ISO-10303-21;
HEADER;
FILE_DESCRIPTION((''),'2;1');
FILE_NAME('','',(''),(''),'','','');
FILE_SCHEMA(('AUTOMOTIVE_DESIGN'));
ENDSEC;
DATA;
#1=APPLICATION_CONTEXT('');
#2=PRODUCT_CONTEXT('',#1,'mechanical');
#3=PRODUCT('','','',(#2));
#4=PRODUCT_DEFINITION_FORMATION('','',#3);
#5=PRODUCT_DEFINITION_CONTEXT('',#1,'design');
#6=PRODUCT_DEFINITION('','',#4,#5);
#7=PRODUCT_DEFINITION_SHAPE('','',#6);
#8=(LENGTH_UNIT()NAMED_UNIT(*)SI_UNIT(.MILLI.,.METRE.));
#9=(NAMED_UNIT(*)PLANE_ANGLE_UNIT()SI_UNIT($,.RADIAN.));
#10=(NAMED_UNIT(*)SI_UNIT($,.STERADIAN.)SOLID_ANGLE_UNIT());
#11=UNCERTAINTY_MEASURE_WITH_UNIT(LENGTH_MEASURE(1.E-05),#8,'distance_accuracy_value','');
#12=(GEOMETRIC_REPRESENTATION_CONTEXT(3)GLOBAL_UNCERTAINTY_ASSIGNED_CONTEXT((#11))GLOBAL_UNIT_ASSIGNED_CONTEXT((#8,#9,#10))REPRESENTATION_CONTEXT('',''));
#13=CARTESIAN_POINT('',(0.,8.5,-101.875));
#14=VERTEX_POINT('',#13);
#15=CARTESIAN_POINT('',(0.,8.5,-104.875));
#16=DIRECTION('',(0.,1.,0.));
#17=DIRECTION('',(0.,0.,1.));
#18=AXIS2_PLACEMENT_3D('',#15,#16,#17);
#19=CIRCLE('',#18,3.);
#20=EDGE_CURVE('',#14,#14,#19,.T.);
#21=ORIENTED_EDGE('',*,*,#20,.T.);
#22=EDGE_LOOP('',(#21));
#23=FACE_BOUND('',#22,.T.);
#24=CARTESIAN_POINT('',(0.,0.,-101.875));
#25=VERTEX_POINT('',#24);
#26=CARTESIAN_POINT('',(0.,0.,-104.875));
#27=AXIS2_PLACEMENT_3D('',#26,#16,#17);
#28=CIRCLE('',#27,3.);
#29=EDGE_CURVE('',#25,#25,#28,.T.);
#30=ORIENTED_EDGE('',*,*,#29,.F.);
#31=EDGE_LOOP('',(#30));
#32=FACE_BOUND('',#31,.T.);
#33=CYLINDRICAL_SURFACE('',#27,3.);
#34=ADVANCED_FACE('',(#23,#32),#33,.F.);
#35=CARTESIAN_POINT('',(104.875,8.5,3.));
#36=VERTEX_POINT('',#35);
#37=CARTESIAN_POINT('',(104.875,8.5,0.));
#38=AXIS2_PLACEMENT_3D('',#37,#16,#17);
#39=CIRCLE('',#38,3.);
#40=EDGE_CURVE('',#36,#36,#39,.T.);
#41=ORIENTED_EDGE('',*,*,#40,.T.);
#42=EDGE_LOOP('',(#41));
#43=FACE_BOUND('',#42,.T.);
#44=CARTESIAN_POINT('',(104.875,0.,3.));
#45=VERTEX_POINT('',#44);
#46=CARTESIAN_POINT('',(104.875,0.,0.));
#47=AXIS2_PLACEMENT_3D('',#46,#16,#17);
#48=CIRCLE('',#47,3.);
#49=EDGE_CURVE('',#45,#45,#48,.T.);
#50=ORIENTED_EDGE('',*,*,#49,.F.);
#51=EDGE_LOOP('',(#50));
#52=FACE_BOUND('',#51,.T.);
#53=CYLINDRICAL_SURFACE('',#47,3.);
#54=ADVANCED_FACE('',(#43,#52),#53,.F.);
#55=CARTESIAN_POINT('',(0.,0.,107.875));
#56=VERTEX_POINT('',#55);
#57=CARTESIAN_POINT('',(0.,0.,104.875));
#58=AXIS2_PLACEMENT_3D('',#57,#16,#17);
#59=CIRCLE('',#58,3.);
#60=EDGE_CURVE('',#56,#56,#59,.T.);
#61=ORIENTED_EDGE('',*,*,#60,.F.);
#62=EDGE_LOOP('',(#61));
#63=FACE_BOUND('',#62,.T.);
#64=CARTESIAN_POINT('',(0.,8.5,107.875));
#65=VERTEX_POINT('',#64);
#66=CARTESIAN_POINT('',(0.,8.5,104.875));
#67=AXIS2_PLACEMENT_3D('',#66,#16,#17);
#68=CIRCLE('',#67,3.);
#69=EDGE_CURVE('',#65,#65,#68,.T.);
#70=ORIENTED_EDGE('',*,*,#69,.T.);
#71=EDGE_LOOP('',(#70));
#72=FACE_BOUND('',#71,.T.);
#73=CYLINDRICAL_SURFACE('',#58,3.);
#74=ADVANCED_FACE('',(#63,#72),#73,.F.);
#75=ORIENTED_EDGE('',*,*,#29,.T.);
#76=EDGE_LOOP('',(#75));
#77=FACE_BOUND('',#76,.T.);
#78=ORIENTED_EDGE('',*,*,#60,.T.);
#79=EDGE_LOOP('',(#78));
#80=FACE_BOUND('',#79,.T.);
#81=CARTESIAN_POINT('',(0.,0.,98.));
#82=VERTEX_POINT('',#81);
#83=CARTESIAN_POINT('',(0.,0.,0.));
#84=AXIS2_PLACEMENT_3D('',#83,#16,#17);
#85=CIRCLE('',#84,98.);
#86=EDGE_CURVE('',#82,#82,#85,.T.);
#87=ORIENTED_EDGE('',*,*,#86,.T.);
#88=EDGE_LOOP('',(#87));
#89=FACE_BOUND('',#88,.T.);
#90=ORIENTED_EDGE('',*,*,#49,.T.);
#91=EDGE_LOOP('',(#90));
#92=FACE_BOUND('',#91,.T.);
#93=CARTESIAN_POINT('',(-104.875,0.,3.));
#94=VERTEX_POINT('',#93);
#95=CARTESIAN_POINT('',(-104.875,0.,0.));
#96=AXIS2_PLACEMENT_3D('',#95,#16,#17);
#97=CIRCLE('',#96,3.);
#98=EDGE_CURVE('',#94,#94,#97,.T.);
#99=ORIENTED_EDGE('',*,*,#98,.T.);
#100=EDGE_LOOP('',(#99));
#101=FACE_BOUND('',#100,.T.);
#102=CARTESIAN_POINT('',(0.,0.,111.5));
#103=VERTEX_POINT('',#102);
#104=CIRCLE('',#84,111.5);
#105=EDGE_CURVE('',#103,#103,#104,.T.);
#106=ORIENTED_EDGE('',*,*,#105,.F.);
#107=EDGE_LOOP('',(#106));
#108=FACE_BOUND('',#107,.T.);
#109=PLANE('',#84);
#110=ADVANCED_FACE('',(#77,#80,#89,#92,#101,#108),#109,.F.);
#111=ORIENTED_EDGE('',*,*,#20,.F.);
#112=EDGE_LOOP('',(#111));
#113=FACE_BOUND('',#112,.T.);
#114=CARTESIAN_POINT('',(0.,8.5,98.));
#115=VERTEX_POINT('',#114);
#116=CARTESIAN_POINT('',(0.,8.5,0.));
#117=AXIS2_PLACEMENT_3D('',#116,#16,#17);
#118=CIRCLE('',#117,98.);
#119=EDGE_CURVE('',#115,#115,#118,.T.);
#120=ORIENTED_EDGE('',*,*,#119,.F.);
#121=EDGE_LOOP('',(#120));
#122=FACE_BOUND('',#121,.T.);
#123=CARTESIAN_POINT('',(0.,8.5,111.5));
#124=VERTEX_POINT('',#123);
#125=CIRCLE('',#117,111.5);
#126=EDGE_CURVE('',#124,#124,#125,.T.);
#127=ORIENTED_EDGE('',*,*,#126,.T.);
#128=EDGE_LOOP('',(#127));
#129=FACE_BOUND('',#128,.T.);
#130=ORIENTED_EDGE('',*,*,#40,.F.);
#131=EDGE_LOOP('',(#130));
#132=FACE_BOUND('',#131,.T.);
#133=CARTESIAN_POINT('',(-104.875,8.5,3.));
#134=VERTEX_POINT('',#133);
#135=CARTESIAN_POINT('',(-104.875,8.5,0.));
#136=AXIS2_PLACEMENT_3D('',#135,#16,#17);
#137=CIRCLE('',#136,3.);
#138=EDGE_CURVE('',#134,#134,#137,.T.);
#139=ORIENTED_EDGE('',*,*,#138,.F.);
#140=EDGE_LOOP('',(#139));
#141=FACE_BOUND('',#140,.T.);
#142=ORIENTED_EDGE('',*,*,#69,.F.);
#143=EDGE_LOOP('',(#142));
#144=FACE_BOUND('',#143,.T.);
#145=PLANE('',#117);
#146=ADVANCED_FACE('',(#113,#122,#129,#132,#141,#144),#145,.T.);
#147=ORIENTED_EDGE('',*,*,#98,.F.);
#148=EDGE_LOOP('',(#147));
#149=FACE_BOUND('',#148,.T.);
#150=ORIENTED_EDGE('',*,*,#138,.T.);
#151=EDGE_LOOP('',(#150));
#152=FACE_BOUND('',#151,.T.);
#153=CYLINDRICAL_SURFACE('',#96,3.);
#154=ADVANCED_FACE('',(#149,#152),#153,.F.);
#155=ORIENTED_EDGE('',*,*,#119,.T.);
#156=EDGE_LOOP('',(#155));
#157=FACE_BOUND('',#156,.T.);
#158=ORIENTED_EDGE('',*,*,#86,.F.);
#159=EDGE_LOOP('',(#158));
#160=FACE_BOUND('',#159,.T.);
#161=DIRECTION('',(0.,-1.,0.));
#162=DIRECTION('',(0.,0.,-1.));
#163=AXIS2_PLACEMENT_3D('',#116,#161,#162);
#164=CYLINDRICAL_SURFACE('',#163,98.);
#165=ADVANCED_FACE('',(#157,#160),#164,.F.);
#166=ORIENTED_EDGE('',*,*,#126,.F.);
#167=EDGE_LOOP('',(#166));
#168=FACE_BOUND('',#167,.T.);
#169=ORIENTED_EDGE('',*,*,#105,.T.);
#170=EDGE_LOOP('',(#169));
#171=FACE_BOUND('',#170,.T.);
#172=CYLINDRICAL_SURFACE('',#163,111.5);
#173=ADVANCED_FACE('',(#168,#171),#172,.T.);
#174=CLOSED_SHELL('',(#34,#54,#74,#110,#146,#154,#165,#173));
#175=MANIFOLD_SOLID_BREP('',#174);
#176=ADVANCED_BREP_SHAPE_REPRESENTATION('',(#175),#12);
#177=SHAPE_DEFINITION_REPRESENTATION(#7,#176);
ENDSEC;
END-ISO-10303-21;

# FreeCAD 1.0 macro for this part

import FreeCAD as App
import Part
import Sketcher
from FreeCAD import Vector

doc = App.newDocument("Part")
body = doc.addObject("PartDesign::Body", "Body")

# Sketch on XZ plane
sketch1 = body.newObject("Sketcher::SketchObject", "Sketch")
sketch1.AttachmentSupport = (doc.getObject("XZ_Plane"), [""])
sketch1.MapMode = "FlatFace"
sketch1.addGeometry([
    Part.Circle(Vector(0, 0, 0), Vector(0, 0, 1), 112),
    Part.Circle(Vector(0, 0, 0), Vector(0, 0, 1), 98),
], False)
sketch1.addConstraint([
    Sketcher.Constraint("Coincident", 0, 3, -1, 1),
    Sketcher.Constraint("Coincident", 1, 3, -1, 1),
    Sketcher.Constraint("Diameter", 0, 223.0),
    Sketcher.Constraint("Diameter", 1, 196.0),
])
pad1 = body.newObject("PartDesign::Pad", "Pad")
pad1.Profile = sketch1
pad1.Length = 8.5
pad1.Reversed = True

# Sketch on XZ plane
sketch2 = body.newObject("Sketcher::SketchObject", "Sketch001")
sketch2.AttachmentSupport = (doc.getObject("XZ_Plane"), [""])
sketch2.MapMode = "FlatFace"
sketch2.AttachmentOffset = App.Placement(Vector(0, 0, -8.5), App.Rotation())
sketch2.addGeometry([
    Part.Circle(Vector(0, -104.9, 0), Vector(0, 0, 1), 3),
    Part.Circle(Vector(-104.9, 0, 0), Vector(0, 0, 1), 3),
    Part.Circle(Vector(104.9, 0, 0), Vector(0, 0, 1), 3),
    Part.Circle(Vector(0, 104.9, 0), Vector(0, 0, 1), 3),
], False)
sketch2.addConstraint([
    Sketcher.Constraint("Equal", 0, 1),
    Sketcher.Constraint("Equal", 1, 2),
    Sketcher.Constraint("Equal", 2, 3),
    Sketcher.Constraint("Symmetric", 1, 3, 2, 3, -1, 1),
    Sketcher.Constraint("Symmetric", 0, 3, 3, 3, -1, 1),
    Sketcher.Constraint("PointOnObject", 0, 3, -2),
    Sketcher.Constraint("PointOnObject", 1, 3, -1),
    Sketcher.Constraint("Diameter", 0, 6.0),
    Sketcher.Constraint("DistanceX", 1, 3, 2, 3, 209.75),
    Sketcher.Constraint("DistanceY", 0, 3, 3, 3, 209.75),
])
pocket1 = body.newObject("PartDesign::Pocket", "Pocket")
pocket1.Profile = sketch2
pocket1.Type = "ThroughAll"
pocket1.Reversed = True

doc.recompute()
